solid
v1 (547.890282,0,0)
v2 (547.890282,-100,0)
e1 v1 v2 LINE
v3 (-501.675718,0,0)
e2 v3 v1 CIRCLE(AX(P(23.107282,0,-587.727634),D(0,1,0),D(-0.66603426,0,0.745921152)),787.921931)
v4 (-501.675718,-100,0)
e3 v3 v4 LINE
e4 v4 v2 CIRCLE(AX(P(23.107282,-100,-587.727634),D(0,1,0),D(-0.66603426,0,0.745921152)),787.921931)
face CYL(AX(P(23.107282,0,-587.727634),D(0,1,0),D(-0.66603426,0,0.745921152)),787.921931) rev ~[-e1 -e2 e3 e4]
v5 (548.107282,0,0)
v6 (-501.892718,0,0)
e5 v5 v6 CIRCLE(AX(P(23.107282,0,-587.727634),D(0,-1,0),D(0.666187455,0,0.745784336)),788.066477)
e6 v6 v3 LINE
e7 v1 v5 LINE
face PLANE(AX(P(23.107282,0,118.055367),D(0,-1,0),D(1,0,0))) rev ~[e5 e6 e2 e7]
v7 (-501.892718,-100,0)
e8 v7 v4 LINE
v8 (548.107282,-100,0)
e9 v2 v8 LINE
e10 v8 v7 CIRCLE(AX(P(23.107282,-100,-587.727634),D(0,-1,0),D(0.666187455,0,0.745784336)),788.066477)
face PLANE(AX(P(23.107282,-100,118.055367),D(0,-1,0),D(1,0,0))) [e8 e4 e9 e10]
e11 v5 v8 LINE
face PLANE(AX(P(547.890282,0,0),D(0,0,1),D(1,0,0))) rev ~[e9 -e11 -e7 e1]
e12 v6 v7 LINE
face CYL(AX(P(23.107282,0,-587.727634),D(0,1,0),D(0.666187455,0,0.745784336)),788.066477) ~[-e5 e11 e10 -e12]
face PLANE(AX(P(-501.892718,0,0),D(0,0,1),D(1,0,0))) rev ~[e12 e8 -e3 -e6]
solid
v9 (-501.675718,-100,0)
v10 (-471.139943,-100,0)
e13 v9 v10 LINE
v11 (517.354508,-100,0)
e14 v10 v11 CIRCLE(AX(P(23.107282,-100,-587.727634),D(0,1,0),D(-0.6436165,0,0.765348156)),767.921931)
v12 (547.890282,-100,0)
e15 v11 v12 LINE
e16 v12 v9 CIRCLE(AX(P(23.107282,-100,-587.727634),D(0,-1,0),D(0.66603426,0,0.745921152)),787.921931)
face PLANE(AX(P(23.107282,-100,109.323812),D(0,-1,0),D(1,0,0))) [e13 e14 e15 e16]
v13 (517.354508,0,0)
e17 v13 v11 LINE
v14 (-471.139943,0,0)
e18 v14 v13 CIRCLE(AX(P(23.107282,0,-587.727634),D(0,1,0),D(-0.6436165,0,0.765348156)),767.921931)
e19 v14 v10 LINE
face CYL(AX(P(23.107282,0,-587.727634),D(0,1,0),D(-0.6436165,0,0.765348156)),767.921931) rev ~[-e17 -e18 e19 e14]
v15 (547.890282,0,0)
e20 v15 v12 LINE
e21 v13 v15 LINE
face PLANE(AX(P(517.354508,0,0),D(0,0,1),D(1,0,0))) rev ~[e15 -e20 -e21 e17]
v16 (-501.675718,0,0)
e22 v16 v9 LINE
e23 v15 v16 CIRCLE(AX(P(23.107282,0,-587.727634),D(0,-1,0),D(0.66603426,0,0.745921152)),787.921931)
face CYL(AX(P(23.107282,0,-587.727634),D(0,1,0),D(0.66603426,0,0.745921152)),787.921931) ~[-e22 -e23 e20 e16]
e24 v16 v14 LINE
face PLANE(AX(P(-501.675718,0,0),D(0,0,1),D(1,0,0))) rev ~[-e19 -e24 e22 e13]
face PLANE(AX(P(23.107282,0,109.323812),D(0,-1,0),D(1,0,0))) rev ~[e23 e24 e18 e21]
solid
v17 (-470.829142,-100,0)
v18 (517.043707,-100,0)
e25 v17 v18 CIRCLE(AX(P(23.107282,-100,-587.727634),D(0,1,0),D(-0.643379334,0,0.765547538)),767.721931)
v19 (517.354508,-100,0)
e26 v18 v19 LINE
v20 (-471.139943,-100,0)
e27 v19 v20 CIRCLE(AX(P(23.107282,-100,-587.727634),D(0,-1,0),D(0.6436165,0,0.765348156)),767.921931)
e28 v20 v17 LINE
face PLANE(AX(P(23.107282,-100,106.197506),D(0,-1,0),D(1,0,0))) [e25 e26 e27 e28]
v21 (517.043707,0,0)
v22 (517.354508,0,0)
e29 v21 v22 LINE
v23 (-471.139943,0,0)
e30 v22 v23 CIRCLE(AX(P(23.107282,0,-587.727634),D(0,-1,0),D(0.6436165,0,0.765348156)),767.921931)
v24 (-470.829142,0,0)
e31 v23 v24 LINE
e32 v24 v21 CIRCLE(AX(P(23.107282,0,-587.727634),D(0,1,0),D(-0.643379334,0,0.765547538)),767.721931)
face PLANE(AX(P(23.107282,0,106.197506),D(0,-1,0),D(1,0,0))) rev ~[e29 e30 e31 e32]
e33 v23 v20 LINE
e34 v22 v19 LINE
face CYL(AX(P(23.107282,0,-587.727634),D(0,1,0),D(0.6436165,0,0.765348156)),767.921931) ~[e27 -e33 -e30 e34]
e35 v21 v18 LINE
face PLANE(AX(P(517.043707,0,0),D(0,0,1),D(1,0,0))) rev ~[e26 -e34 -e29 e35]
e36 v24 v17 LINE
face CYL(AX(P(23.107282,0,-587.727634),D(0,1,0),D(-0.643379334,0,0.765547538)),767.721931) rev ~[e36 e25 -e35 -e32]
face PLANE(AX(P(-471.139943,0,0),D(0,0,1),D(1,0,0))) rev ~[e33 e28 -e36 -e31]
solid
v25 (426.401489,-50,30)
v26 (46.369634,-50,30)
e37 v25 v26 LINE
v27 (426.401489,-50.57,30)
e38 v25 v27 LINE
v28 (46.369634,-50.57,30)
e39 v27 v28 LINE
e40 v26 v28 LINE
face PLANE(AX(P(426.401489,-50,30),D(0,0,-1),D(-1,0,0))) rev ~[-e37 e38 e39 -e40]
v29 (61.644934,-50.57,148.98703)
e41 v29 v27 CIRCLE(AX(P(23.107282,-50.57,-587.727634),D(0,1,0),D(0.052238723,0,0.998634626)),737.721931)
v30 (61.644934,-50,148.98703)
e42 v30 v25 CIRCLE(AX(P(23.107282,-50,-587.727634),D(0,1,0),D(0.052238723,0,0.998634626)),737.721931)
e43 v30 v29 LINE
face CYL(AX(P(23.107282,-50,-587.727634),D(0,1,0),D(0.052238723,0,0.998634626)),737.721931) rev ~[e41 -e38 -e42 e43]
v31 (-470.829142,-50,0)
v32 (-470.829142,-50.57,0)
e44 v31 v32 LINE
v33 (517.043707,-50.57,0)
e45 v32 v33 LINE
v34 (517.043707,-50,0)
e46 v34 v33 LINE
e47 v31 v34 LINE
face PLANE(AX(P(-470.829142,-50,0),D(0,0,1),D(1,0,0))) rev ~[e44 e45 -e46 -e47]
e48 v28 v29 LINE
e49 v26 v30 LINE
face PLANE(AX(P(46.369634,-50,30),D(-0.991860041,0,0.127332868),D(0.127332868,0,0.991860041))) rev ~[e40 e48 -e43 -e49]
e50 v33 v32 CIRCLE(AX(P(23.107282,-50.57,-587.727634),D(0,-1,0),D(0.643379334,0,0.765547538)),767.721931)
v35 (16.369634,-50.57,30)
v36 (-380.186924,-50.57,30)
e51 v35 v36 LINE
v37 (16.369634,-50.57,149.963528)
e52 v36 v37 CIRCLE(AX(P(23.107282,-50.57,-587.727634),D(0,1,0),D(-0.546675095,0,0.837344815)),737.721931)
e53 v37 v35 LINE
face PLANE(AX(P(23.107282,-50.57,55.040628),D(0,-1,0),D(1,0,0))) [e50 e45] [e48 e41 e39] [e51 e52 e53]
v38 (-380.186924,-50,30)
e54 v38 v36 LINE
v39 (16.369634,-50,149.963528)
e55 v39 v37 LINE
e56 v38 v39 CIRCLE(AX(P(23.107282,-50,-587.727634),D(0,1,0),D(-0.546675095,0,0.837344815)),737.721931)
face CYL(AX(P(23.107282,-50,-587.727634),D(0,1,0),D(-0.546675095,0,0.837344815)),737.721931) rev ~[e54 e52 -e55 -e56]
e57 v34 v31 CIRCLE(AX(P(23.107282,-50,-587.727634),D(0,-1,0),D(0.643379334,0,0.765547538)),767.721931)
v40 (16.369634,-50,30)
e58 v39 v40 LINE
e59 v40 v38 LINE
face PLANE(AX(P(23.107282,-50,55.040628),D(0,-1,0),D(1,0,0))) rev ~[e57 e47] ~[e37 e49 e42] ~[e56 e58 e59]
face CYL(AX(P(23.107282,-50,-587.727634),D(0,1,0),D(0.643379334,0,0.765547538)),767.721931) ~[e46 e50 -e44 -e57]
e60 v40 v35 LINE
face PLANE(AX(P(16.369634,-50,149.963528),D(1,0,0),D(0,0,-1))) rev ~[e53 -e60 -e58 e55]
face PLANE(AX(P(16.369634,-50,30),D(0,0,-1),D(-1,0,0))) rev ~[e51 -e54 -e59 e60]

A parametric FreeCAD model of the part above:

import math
import FreeCAD as App
import Part
import Sketcher
from FreeCAD import Vector

doc = App.newDocument("Part")
body = doc.addObject("PartDesign::Body", "Body")

# Sketch on XZ plane
sketch1 = body.newObject("Sketcher::SketchObject", "Sketch")
sketch1.AttachmentSupport = (doc.getObject("XZ_Plane"), [""])
sketch1.MapMode = "FlatFace"
sketch1.addGeometry(Part.LineSegment(Vector(547.89, 0, 0), Vector(548.11, 0, 0)), False)
sketch1.addGeometry(Part.ArcOfCircle(Part.Circle(Vector(23.11, -587.73, 0), Vector(0, 0, 1), 788.07), math.radians(48), math.radians(132)), False)
sketch1.addGeometry(Part.LineSegment(Vector(-501.89, 0, 0), Vector(-501.68, 0, 0)), False)
sketch1.addGeometry(Part.ArcOfCircle(Part.Circle(Vector(23.11, -587.73, 0), Vector(0, 0, 1), 787.92), math.radians(48), math.radians(132)), False)
sketch1.addConstraint(Sketcher.Constraint("Coincident", 0, 2, 1, 1))
sketch1.addConstraint(Sketcher.Constraint("Coincident", 1, 2, 2, 1))
sketch1.addConstraint(Sketcher.Constraint("Coincident", 2, 2, 3, 2))
sketch1.addConstraint(Sketcher.Constraint("Coincident", 3, 1, 0, 1))
sketch1.addConstraint(Sketcher.Constraint("Horizontal", 0))
sketch1.addConstraint(Sketcher.Constraint("Horizontal", 2))
sketch1.addConstraint(Sketcher.Constraint("Coincident", 3, 3, 1, 3))
sketch1.addConstraint(Sketcher.Constraint("PointOnObject", 0, 2, -1))
sketch1.addConstraint(Sketcher.Constraint("PointOnObject", 2, 2, -1))
sketch1.addConstraint(Sketcher.Constraint("DistanceX", 1, 3, 0, 2, 525.0))
sketch1.addConstraint(Sketcher.Constraint("DistanceX", 0, 1, 0, 2, 0.217))
sketch1.addConstraint(Sketcher.Constraint("Radius", 3, 787.921931))
sketch1.addConstraint(Sketcher.Constraint("DistanceX", -1, 1, 1, 3, 23.107282))
pad1 = body.newObject("PartDesign::Pad", "Pad")
pad1.Profile = sketch1
pad1.Length = 100
body2 = doc.addObject("PartDesign::Body", "Body001")

# Sketch on XZ plane
sketch2 = body2.newObject("Sketcher::SketchObject", "Sketch001")
sketch2.AttachmentSupport = (doc.getObject("XZ_Plane001"), [""])
sketch2.MapMode = "FlatFace"
sketch2.addGeometry(Part.LineSegment(Vector(517, 0, 0), Vector(548, 0, 0)), False)
sketch2.addGeometry(Part.ArcOfCircle(Part.Circle(Vector(23, -588, 0), Vector(0, 0, 1), 788), math.radians(48), math.radians(132)), False)
sketch2.addGeometry(Part.LineSegment(Vector(-502, 0, 0), Vector(-471, 0, 0)), False)
sketch2.addGeometry(Part.ArcOfCircle(Part.Circle(Vector(23, -588, 0), Vector(0, 0, 1), 768), math.radians(50), math.radians(130)), False)
sketch2.addConstraint(Sketcher.Constraint("Coincident", 0, 2, 1, 1))
sketch2.addConstraint(Sketcher.Constraint("Coincident", 1, 2, 2, 1))
sketch2.addConstraint(Sketcher.Constraint("Coincident", 2, 2, 3, 2))
sketch2.addConstraint(Sketcher.Constraint("Coincident", 3, 1, 0, 1))
sketch2.addConstraint(Sketcher.Constraint("Horizontal", 0))
sketch2.addConstraint(Sketcher.Constraint("Horizontal", 2))
sketch2.addConstraint(Sketcher.Constraint("Coincident", 3, 3, 1, 3))
sketch2.addConstraint(Sketcher.Constraint("PointOnObject", 0, 2, -1))
sketch2.addConstraint(Sketcher.Constraint("PointOnObject", 2, 2, -1))
sketch2.addConstraint(Sketcher.Constraint("Radius", 1, 787.921931))
sketch2.addConstraint(Sketcher.Constraint("Radius", 3, 767.921931))
sketch2.addConstraint(Sketcher.Constraint("DistanceX", 1, 3, 0, 2, 524.783))
sketch2.addConstraint(Sketcher.Constraint("DistanceX", -1, 1, 1, 3, 23.107282))
pad2 = body2.newObject("PartDesign::Pad", "Pad001")
pad2.Profile = sketch2
pad2.Length = 100
body3 = doc.addObject("PartDesign::Body", "Body002")

# Sketch on XZ plane
sketch3 = body3.newObject("Sketcher::SketchObject", "Sketch002")
sketch3.AttachmentSupport = (doc.getObject("XZ_Plane002"), [""])
sketch3.MapMode = "FlatFace"
sketch3.addGeometry(Part.LineSegment(Vector(517.04, 0, 0), Vector(517.35, 0, 0)), False)
sketch3.addGeometry(Part.ArcOfCircle(Part.Circle(Vector(23.11, -587.73, 0), Vector(0, 0, 1), 767.92), math.radians(50), math.radians(130)), False)
sketch3.addGeometry(Part.LineSegment(Vector(-471.14, 0, 0), Vector(-470.83, 0, 0)), False)
sketch3.addGeometry(Part.ArcOfCircle(Part.Circle(Vector(23.11, -587.73, 0), Vector(0, 0, 1), 767.72), math.radians(50), math.radians(130)), False)
sketch3.addConstraint(Sketcher.Constraint("Coincident", 0, 2, 1, 1))
sketch3.addConstraint(Sketcher.Constraint("Coincident", 1, 2, 2, 1))
sketch3.addConstraint(Sketcher.Constraint("Coincident", 2, 2, 3, 2))
sketch3.addConstraint(Sketcher.Constraint("Coincident", 3, 1, 0, 1))
sketch3.addConstraint(Sketcher.Constraint("Horizontal", 0))
sketch3.addConstraint(Sketcher.Constraint("Horizontal", 2))
sketch3.addConstraint(Sketcher.Constraint("Coincident", 3, 3, 1, 3))
sketch3.addConstraint(Sketcher.Constraint("PointOnObject", 0, 2, -1))
sketch3.addConstraint(Sketcher.Constraint("PointOnObject", 2, 2, -1))
sketch3.addConstraint(Sketcher.Constraint("Radius", 1, 767.921931))
sketch3.addConstraint(Sketcher.Constraint("Radius", 3, 767.721931))
sketch3.addConstraint(Sketcher.Constraint("DistanceX", 2, 2, -1, 1, 470.829142))
sketch3.addConstraint(Sketcher.Constraint("DistanceX", 2, 2, 0, 2, 988.18365))
pad3 = body3.newObject("PartDesign::Pad", "Pad002")
pad3.Profile = sketch3
pad3.Length = 100
body4 = doc.addObject("PartDesign::Body", "Body003")

# Sketch on XZ plane
sketch4 = body4.newObject("Sketcher::SketchObject", "Sketch003")
sketch4.AttachmentSupport = (doc.getObject("XZ_Plane003"), [""])
sketch4.MapMode = "FlatFace"
sketch4.AttachmentOffset = App.Placement(Vector(0, 0, 50), App.Rotation())
sketch4.addGeometry(Part.ArcOfCircle(Part.Circle(Vector(23, -588, 0), Vector(0, 0, 1), 768), math.radians(50), math.radians(130)), False)
sketch4.addGeometry(Part.LineSegment(Vector(-471, 0, 0), Vector(517, 0, 0)), False)
sketch4.addGeometry(Part.LineSegment(Vector(46, 30, 0), Vector(62, 149, 0)), False)
sketch4.addGeometry(Part.ArcOfCircle(Part.Circle(Vector(23, -588, 0), Vector(0, 0, 1), 738), math.radians(57), math.radians(87)), False)
sketch4.addGeometry(Part.LineSegment(Vector(426, 30, 0), Vector(46, 30, 0)), False)
sketch4.addGeometry(Part.LineSegment(Vector(16, 150, 0), Vector(16, 30, 0)), False)
sketch4.addGeometry(Part.LineSegment(Vector(16, 30, 0), Vector(-380, 30, 0)), False)
sketch4.addGeometry(Part.ArcOfCircle(Part.Circle(Vector(23, -588, 0), Vector(0, 0, 1), 738), math.radians(91), math.radians(123)), False)
sketch4.addConstraint(Sketcher.Constraint("Coincident", 0, 1, 1, 2))
sketch4.addConstraint(Sketcher.Constraint("Coincident", 1, 1, 0, 2))
sketch4.addConstraint(Sketcher.Constraint("Coincident", 2, 2, 3, 2))
sketch4.addConstraint(Sketcher.Constraint("Coincident", 3, 1, 4, 1))
sketch4.addConstraint(Sketcher.Constraint("Coincident", 4, 2, 2, 1))
sketch4.addConstraint(Sketcher.Constraint("Coincident", 5, 2, 6, 1))
sketch4.addConstraint(Sketcher.Constraint("Coincident", 6, 2, 7, 2))
sketch4.addConstraint(Sketcher.Constraint("Coincident", 7, 1, 5, 1))
sketch4.addConstraint(Sketcher.Constraint("Horizontal", 1))
sketch4.addConstraint(Sketcher.Constraint("Horizontal", 4))
sketch4.addConstraint(Sketcher.Constraint("Vertical", 5))
sketch4.addConstraint(Sketcher.Constraint("Horizontal", 6))
sketch4.addConstraint(Sketcher.Constraint("Coincident", 3, 3, 0, 3))
sketch4.addConstraint(Sketcher.Constraint("Coincident", 7, 3, 0, 3))
sketch4.addConstraint(Sketcher.Constraint("Equal", 3, 7))
sketch4.addConstraint(Sketcher.Constraint("PointOnObject", 1, 1, -1))
sketch4.addConstraint(Sketcher.Constraint("Horizontal", 4, 2, 5, 2))
sketch4.addConstraint(Sketcher.Constraint("DistanceY", -1, 1, 4, 2, 30.0))
sketch4.addConstraint(Sketcher.Constraint("DistanceX", 5, 2, 4, 2, 30.0))
sketch4.addConstraint(Sketcher.Constraint("Radius", 0, 767.721931))
sketch4.addConstraint(Sketcher.Constraint("Radius", 3, 737.721931))
sketch4.addConstraint(Sketcher.Constraint("DistanceX", 1, 1, 1, 2, 987.872848))
sketch4.addConstraint(Sketcher.Constraint("DistanceX", 6, 2, 6, 1, 396.556558))
sketch4.addConstraint(Sketcher.Constraint("DistanceX", 4, 2, 2, 2, 15.2753))
sketch4.addConstraint(Sketcher.Constraint("DistanceX", 1, 1, -1, 1, 470.829142))
pad4 = body4.newObject("PartDesign::Pad", "Pad003")
pad4.Profile = sketch4
pad4.Length = 0.57

doc.recompute()
